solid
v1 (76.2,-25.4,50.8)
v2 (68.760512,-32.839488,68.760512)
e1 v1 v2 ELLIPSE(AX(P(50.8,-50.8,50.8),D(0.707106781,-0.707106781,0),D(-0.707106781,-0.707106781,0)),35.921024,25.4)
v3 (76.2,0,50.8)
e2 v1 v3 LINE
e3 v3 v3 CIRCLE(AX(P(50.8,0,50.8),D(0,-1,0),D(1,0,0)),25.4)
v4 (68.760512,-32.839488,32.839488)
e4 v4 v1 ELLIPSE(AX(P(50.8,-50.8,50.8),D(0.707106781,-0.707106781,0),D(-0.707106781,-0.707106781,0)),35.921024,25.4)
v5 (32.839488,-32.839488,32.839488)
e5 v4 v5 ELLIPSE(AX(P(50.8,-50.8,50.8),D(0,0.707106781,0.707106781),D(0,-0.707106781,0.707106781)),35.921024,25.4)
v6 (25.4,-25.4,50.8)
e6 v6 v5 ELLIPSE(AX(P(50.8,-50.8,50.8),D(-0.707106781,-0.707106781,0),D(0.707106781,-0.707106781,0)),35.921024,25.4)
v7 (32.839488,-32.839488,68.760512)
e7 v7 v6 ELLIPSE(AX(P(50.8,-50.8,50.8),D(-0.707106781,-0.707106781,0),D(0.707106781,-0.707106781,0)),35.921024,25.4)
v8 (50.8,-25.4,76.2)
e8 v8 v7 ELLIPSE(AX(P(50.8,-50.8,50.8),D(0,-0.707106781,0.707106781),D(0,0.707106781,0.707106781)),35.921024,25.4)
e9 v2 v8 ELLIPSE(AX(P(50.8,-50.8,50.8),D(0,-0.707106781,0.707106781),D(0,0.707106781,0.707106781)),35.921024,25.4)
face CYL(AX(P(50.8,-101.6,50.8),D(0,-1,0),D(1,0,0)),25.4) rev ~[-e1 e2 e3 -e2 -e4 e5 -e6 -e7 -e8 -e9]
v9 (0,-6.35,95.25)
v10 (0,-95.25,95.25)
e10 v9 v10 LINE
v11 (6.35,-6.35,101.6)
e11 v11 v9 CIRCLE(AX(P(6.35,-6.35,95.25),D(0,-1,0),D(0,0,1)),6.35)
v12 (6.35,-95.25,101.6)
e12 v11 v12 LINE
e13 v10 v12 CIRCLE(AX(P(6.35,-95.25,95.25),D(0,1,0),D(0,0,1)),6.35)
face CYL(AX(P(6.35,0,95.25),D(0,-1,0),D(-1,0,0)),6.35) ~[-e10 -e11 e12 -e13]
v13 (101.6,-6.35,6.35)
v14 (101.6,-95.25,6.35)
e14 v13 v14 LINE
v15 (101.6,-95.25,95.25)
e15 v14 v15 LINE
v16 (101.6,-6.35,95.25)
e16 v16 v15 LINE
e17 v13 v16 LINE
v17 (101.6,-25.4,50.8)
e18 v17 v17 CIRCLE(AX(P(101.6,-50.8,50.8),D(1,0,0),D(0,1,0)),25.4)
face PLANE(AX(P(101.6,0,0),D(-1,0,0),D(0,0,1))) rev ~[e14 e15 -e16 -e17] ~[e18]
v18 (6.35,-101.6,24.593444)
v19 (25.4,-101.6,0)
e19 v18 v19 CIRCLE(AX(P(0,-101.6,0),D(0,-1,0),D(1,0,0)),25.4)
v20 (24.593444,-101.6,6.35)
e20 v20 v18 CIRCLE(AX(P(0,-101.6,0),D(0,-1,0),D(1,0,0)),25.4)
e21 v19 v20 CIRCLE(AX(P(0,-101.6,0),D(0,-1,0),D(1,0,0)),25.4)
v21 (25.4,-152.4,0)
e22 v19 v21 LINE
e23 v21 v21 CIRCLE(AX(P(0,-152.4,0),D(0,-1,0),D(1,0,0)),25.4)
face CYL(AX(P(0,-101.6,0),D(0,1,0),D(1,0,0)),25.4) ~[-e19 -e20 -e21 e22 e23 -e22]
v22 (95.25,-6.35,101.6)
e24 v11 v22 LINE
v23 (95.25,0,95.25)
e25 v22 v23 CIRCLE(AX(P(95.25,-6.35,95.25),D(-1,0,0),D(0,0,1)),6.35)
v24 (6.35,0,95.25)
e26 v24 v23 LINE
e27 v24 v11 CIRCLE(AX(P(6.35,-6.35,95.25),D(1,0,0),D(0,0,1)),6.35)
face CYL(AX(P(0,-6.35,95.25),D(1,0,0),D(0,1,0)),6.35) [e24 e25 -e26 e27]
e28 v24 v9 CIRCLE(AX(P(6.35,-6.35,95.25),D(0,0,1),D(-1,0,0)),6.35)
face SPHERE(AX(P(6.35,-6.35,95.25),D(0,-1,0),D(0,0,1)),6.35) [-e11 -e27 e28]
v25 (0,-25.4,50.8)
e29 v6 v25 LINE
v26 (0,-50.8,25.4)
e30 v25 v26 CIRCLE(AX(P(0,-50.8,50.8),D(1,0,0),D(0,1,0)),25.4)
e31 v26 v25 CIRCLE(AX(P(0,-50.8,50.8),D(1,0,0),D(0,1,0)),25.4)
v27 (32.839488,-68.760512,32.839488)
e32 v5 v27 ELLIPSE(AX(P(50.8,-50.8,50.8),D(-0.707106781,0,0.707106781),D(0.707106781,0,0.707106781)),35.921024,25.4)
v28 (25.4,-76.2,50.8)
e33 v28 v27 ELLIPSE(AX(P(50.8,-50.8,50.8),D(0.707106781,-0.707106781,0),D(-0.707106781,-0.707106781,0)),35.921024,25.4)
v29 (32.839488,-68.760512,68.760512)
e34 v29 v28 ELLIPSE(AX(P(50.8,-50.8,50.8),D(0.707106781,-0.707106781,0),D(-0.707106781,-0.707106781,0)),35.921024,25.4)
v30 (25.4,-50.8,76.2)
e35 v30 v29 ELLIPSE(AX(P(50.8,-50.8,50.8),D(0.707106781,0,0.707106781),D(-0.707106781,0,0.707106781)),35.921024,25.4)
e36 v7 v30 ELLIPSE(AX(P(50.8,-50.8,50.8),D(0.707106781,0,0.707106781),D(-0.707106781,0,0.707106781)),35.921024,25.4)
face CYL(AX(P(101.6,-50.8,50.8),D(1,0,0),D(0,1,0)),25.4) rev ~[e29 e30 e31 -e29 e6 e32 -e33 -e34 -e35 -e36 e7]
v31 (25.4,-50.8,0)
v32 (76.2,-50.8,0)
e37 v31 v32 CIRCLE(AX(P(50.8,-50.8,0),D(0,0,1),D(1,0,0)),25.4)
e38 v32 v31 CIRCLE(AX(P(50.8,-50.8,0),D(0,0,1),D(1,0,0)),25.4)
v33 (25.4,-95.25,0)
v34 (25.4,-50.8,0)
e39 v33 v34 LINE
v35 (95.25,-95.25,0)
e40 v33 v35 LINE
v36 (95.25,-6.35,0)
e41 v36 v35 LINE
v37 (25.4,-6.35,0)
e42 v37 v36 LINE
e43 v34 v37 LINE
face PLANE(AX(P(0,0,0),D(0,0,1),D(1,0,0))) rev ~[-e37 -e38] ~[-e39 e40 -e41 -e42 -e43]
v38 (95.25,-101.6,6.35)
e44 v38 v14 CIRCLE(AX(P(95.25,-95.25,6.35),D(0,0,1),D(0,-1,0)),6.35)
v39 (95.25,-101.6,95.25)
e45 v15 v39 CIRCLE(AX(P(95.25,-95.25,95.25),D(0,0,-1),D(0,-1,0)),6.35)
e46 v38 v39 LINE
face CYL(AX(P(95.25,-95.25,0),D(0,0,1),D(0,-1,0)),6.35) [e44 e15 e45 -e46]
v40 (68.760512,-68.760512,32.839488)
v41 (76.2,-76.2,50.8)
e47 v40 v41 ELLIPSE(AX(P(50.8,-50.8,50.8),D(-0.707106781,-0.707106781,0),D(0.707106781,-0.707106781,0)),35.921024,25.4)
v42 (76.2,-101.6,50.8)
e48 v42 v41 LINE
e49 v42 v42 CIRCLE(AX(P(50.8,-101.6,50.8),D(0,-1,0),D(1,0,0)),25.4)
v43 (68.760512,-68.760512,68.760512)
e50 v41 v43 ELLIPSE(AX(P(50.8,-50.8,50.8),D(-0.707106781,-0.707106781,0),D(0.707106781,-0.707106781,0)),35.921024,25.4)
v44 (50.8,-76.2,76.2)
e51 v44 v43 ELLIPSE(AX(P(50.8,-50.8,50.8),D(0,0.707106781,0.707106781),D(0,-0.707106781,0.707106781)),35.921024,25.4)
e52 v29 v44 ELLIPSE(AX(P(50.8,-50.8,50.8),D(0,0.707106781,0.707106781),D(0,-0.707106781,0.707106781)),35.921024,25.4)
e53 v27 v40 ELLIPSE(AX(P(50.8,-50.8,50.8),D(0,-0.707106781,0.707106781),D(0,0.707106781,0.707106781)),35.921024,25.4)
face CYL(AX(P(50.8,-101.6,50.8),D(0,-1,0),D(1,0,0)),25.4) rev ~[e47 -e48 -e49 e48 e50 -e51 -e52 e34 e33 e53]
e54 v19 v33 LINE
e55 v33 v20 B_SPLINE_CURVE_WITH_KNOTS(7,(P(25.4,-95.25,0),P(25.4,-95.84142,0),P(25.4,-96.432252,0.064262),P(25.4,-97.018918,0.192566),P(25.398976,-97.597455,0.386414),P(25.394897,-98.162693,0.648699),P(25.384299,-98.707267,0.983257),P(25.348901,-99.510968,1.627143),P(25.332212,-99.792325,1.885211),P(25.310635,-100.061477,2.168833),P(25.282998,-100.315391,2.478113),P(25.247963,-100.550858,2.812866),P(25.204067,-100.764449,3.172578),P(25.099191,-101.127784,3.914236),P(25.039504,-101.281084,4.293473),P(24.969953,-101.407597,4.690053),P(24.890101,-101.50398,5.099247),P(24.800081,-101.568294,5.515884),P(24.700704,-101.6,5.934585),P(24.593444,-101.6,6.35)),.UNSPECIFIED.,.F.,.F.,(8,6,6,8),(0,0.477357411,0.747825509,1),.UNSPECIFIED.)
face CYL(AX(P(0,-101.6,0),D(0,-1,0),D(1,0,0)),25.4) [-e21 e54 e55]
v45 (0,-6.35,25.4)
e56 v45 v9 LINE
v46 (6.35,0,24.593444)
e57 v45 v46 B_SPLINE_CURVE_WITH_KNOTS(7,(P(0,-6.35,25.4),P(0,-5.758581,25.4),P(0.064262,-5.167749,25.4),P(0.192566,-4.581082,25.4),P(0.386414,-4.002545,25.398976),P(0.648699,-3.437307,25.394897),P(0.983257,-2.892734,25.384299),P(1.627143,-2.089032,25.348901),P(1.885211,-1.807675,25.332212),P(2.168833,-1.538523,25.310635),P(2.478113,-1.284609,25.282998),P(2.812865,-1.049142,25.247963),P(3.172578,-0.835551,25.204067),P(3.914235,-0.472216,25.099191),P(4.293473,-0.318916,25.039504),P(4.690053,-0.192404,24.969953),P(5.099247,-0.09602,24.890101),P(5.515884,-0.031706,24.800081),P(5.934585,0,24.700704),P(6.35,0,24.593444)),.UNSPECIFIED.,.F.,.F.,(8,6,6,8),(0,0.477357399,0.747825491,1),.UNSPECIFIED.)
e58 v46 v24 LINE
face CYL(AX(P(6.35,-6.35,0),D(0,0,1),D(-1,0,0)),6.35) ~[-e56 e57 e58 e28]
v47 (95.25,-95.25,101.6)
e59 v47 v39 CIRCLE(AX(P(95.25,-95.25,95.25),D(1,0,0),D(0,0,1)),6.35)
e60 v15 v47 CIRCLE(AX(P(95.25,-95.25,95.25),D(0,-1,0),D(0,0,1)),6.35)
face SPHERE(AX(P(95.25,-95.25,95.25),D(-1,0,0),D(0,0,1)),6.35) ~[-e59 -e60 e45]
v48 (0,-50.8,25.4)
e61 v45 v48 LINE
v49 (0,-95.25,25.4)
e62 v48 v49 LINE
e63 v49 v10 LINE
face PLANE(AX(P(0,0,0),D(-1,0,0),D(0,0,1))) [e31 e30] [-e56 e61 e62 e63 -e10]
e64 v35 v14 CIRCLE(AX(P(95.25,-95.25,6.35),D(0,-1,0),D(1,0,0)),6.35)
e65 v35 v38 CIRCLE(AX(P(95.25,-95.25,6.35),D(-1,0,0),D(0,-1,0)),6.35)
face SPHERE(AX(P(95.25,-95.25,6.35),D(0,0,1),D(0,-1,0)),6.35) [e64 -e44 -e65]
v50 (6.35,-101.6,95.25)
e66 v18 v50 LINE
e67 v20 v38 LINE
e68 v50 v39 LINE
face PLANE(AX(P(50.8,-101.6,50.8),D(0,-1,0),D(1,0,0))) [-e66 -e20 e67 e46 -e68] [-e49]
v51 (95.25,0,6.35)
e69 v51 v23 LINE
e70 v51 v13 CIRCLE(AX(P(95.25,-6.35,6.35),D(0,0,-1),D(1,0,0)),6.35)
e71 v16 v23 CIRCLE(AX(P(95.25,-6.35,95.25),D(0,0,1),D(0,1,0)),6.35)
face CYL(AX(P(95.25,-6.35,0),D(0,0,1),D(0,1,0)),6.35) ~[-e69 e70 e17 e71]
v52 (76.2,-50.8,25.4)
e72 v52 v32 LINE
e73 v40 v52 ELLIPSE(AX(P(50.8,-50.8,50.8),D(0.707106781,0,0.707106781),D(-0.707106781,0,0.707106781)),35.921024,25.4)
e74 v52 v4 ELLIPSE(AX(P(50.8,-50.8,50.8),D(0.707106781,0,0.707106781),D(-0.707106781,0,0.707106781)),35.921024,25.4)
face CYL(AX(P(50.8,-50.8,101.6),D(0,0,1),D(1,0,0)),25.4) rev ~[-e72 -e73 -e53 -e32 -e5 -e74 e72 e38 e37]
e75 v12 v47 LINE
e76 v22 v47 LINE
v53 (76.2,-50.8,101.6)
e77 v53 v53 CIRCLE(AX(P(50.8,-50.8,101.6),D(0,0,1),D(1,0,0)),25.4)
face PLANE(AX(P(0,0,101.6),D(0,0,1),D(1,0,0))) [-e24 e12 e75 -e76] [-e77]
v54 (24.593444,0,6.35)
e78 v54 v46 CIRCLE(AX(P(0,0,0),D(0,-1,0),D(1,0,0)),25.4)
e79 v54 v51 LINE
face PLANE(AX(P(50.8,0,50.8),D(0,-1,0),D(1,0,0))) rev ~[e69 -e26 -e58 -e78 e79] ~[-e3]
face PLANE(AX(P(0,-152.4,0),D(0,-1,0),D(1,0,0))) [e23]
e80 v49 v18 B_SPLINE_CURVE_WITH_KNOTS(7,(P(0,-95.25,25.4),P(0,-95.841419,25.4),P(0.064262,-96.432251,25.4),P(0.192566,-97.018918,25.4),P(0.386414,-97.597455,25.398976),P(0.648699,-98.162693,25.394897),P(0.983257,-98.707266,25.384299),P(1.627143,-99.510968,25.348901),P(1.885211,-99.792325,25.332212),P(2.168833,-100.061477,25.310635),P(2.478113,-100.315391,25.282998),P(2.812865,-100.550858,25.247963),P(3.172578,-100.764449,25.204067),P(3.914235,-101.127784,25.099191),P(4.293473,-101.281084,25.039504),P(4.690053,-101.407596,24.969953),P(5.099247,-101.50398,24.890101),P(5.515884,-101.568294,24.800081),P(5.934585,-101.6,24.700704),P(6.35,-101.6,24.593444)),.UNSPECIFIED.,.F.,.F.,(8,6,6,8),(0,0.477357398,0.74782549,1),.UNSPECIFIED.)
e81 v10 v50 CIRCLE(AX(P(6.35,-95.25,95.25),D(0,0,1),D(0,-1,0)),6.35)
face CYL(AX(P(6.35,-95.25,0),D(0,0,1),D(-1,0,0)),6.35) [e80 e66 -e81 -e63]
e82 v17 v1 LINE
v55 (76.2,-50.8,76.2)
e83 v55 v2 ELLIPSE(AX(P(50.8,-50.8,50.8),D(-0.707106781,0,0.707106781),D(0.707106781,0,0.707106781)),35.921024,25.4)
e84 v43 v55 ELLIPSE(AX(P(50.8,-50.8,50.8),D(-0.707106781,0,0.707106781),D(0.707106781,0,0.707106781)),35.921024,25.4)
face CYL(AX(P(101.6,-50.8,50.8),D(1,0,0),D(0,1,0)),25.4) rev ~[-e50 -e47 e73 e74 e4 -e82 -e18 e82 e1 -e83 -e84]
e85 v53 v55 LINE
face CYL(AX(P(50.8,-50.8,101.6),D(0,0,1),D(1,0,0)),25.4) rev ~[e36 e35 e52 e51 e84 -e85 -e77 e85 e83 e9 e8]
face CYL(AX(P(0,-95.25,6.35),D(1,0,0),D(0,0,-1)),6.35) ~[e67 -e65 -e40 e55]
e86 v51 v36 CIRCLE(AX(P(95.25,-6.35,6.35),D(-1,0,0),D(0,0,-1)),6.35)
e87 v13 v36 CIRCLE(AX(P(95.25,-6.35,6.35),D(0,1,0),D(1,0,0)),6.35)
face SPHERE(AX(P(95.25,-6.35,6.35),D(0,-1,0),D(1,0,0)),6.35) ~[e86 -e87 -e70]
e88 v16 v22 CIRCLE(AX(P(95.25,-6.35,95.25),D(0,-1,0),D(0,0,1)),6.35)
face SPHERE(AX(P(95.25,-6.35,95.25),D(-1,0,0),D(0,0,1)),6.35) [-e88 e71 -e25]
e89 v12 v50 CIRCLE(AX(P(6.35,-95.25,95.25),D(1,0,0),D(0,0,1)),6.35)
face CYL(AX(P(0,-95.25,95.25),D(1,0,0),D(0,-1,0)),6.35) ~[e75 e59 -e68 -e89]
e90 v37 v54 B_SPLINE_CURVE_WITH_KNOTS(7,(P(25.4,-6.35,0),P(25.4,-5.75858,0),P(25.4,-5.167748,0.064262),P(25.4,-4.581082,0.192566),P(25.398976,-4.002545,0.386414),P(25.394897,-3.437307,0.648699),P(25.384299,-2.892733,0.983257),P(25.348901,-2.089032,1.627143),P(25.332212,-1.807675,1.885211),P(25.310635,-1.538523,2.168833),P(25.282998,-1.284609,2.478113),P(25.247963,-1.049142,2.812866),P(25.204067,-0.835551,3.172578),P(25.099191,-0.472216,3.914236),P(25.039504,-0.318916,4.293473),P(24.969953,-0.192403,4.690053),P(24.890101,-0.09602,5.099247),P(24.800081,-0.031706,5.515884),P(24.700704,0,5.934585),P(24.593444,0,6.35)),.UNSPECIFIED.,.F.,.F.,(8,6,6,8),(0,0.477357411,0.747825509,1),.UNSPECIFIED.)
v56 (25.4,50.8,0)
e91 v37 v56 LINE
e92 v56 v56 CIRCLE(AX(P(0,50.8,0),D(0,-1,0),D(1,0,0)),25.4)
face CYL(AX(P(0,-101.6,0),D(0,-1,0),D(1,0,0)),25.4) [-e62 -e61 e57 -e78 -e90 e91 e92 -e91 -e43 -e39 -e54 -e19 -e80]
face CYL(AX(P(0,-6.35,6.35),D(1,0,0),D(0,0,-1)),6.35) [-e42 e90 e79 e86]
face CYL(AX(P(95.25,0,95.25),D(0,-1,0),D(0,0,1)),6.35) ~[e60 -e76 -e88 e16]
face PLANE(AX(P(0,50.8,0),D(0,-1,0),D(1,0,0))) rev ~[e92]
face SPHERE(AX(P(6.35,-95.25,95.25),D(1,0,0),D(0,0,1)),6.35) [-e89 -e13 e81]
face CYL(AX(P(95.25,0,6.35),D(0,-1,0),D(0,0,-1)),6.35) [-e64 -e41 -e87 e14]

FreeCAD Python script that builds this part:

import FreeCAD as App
import Part
import Sketcher
from FreeCAD import Vector
Q = App.Units.Quantity


def edges_at(feature, points):
    """Names of the edges that pass closest to the given points."""
    edges = feature.Shape.Edges
    near = lambda p: min(range(len(edges)), key=lambda i: edges[i].distToShape(Part.Vertex(*p))[0])
    return sorted({f"Edge{near(p) + 1}" for p in points})


def add_polygon(sketch, points):
    """Adds a closed chain of lines whose ends are joined by coincident constraints."""
    first, n = sketch.GeometryCount, len(points)
    for a, b in zip(points, points[1:] + points[:1]):
        sketch.addGeometry(Part.LineSegment(App.Vector(*a, 0), App.Vector(*b, 0)), False)
    for i in range(n):
        sketch.addConstraint(Sketcher.Constraint("Coincident", first + i, 2, first + (i + 1) % n, 1))

doc = App.newDocument("Part")
body = doc.addObject("PartDesign::Body", "Body")

sketch1 = body.newObject("Sketcher::SketchObject", "Sketch")
sketch1.AttachmentSupport = (doc.getObject("XZ_Plane"), [""])
sketch1.MapMode = "FlatFace"
add_polygon(sketch1, [(0, 102), (0, 0), (102, 0), (102, 102)])
sketch1.addConstraint(Sketcher.Constraint("Vertical", 0))
sketch1.addConstraint(Sketcher.Constraint("Horizontal", 1))
sketch1.addConstraint(Sketcher.Constraint("Vertical", 2))
sketch1.addConstraint(Sketcher.Constraint("Horizontal", 3))
sketch1.addConstraint(Sketcher.Constraint("Coincident", 0, 2, -1, 1))
sketch1.addConstraint(Sketcher.Constraint("Equal", 3, 0))
sketch1.addConstraint(Sketcher.Constraint("DistanceX", 1, 1, 1, 2, Q("4 in")))
pad1 = body.newObject("PartDesign::Pad", "Pad")
pad1.Profile = sketch1
pad1.Length = Q("4 in")

sketch2 = body.newObject("Sketcher::SketchObject", "Sketch001")
sketch2.AttachmentSupport = (doc.getObject("XY_Plane"), [""])
sketch2.MapMode = "FlatFace"
sketch2.AttachmentOffset = App.Placement(Vector(0, 0, 4 * 25.4), App.Rotation())
sketch2.addGeometry(Part.Circle(Vector(51, -51, 0), Vector(0, 0, 1), 25), False)
sketch2.addConstraint(Sketcher.Constraint("Diameter", 0, Q("2 in")))
sketch2.addConstraint(Sketcher.Constraint("DistanceX", -1, 1, 0, 3, Q("2 in")))
sketch2.addConstraint(Sketcher.Constraint("DistanceY", 0, 3, -1, 1, Q("2 in")))
pocket1 = body.newObject("PartDesign::Pocket", "Pocket")
pocket1.Profile = sketch2
pocket1.Length = Q("4 in")

sketch3 = body.newObject("Sketcher::SketchObject", "Sketch002")
sketch3.AttachmentSupport = (doc.getObject("XZ_Plane"), [""])
sketch3.MapMode = "FlatFace"
sketch3.AttachmentOffset = App.Placement(Vector(0, 0, 4 * 25.4), App.Rotation())
sketch3.addGeometry(Part.Circle(Vector(51, 51, 0), Vector(0, 0, 1), 25), False)
sketch3.addConstraint(Sketcher.Constraint("Diameter", 0, Q("2 in")))
sketch3.addConstraint(Sketcher.Constraint("DistanceX", -1, 1, 0, 3, Q("2 in")))
sketch3.addConstraint(Sketcher.Constraint("DistanceY", -1, 1, 0, 3, Q("2 in")))
pocket2 = body.newObject("PartDesign::Pocket", "Pocket001")
pocket2.Profile = sketch3
pocket2.Length = Q("4 in")

sketch4 = body.newObject("Sketcher::SketchObject", "Sketch003")
sketch4.AttachmentSupport = (doc.getObject("YZ_Plane"), [""])
sketch4.MapMode = "FlatFace"
sketch4.AttachmentOffset = App.Placement(Vector(0, 0, 4 * 25.4), App.Rotation())
sketch4.addGeometry(Part.Circle(Vector(-51, 51, 0), Vector(0, 0, 1), 25), False)
sketch4.addConstraint(Sketcher.Constraint("Diameter", 0, Q("2 in")))
sketch4.addConstraint(Sketcher.Constraint("DistanceX", 0, 3, -1, 1, Q("2 in")))
sketch4.addConstraint(Sketcher.Constraint("DistanceY", -1, 1, 0, 3, Q("2 in")))
pocket3 = body.newObject("PartDesign::Pocket", "Pocket002")
pocket3.Profile = sketch4
pocket3.Length = Q("4 in")
doc.recompute()

fillet = body.newObject("PartDesign::Fillet", "Fillet")
fillet.Base = (pocket3, edges_at(pocket3, [
    (50.8, -101.6, 101.6),
    (0, -50.8, 101.6),
    (50.8, 0, 101.6),
    (101.6, -50.8, 101.6),
    (0, -101.6, 50.8),
    (101.6, -101.6, 50.8),
    (50.8, -101.6, 0),
    (101.6, -50.8, 0),
    (101.6, 0, 50.8),
    (0, 0, 50.8),
    (50.8, 0, 0),
    (0, -50.8, 0),
]))
fillet.Radius = Q("0.25 in")

sketch5 = body.newObject("Sketcher::SketchObject", "Sketch004")
sketch5.AttachmentSupport = (doc.getObject("XZ_Plane"), [""])
sketch5.MapMode = "FlatFace"
sketch5.AttachmentOffset = App.Placement(Vector(0, 0, 4 * 25.4), App.Rotation())
sketch5.addGeometry(Part.Circle(Vector(0, 0, 0), Vector(0, 0, 1), 25), False)
sketch5.addConstraint(Sketcher.Constraint("Coincident", 0, 3, -1, 1))
sketch5.addConstraint(Sketcher.Constraint("Diameter", 0, Q("2 in")))
pad2 = body.newObject("PartDesign::Pad", "Pad001")
pad2.Profile = sketch5
pad2.Type = "TwoLengths"
pad2.Length = Q("2 in")
pad2.Length2 = Q("6 in")

doc.recompute()
